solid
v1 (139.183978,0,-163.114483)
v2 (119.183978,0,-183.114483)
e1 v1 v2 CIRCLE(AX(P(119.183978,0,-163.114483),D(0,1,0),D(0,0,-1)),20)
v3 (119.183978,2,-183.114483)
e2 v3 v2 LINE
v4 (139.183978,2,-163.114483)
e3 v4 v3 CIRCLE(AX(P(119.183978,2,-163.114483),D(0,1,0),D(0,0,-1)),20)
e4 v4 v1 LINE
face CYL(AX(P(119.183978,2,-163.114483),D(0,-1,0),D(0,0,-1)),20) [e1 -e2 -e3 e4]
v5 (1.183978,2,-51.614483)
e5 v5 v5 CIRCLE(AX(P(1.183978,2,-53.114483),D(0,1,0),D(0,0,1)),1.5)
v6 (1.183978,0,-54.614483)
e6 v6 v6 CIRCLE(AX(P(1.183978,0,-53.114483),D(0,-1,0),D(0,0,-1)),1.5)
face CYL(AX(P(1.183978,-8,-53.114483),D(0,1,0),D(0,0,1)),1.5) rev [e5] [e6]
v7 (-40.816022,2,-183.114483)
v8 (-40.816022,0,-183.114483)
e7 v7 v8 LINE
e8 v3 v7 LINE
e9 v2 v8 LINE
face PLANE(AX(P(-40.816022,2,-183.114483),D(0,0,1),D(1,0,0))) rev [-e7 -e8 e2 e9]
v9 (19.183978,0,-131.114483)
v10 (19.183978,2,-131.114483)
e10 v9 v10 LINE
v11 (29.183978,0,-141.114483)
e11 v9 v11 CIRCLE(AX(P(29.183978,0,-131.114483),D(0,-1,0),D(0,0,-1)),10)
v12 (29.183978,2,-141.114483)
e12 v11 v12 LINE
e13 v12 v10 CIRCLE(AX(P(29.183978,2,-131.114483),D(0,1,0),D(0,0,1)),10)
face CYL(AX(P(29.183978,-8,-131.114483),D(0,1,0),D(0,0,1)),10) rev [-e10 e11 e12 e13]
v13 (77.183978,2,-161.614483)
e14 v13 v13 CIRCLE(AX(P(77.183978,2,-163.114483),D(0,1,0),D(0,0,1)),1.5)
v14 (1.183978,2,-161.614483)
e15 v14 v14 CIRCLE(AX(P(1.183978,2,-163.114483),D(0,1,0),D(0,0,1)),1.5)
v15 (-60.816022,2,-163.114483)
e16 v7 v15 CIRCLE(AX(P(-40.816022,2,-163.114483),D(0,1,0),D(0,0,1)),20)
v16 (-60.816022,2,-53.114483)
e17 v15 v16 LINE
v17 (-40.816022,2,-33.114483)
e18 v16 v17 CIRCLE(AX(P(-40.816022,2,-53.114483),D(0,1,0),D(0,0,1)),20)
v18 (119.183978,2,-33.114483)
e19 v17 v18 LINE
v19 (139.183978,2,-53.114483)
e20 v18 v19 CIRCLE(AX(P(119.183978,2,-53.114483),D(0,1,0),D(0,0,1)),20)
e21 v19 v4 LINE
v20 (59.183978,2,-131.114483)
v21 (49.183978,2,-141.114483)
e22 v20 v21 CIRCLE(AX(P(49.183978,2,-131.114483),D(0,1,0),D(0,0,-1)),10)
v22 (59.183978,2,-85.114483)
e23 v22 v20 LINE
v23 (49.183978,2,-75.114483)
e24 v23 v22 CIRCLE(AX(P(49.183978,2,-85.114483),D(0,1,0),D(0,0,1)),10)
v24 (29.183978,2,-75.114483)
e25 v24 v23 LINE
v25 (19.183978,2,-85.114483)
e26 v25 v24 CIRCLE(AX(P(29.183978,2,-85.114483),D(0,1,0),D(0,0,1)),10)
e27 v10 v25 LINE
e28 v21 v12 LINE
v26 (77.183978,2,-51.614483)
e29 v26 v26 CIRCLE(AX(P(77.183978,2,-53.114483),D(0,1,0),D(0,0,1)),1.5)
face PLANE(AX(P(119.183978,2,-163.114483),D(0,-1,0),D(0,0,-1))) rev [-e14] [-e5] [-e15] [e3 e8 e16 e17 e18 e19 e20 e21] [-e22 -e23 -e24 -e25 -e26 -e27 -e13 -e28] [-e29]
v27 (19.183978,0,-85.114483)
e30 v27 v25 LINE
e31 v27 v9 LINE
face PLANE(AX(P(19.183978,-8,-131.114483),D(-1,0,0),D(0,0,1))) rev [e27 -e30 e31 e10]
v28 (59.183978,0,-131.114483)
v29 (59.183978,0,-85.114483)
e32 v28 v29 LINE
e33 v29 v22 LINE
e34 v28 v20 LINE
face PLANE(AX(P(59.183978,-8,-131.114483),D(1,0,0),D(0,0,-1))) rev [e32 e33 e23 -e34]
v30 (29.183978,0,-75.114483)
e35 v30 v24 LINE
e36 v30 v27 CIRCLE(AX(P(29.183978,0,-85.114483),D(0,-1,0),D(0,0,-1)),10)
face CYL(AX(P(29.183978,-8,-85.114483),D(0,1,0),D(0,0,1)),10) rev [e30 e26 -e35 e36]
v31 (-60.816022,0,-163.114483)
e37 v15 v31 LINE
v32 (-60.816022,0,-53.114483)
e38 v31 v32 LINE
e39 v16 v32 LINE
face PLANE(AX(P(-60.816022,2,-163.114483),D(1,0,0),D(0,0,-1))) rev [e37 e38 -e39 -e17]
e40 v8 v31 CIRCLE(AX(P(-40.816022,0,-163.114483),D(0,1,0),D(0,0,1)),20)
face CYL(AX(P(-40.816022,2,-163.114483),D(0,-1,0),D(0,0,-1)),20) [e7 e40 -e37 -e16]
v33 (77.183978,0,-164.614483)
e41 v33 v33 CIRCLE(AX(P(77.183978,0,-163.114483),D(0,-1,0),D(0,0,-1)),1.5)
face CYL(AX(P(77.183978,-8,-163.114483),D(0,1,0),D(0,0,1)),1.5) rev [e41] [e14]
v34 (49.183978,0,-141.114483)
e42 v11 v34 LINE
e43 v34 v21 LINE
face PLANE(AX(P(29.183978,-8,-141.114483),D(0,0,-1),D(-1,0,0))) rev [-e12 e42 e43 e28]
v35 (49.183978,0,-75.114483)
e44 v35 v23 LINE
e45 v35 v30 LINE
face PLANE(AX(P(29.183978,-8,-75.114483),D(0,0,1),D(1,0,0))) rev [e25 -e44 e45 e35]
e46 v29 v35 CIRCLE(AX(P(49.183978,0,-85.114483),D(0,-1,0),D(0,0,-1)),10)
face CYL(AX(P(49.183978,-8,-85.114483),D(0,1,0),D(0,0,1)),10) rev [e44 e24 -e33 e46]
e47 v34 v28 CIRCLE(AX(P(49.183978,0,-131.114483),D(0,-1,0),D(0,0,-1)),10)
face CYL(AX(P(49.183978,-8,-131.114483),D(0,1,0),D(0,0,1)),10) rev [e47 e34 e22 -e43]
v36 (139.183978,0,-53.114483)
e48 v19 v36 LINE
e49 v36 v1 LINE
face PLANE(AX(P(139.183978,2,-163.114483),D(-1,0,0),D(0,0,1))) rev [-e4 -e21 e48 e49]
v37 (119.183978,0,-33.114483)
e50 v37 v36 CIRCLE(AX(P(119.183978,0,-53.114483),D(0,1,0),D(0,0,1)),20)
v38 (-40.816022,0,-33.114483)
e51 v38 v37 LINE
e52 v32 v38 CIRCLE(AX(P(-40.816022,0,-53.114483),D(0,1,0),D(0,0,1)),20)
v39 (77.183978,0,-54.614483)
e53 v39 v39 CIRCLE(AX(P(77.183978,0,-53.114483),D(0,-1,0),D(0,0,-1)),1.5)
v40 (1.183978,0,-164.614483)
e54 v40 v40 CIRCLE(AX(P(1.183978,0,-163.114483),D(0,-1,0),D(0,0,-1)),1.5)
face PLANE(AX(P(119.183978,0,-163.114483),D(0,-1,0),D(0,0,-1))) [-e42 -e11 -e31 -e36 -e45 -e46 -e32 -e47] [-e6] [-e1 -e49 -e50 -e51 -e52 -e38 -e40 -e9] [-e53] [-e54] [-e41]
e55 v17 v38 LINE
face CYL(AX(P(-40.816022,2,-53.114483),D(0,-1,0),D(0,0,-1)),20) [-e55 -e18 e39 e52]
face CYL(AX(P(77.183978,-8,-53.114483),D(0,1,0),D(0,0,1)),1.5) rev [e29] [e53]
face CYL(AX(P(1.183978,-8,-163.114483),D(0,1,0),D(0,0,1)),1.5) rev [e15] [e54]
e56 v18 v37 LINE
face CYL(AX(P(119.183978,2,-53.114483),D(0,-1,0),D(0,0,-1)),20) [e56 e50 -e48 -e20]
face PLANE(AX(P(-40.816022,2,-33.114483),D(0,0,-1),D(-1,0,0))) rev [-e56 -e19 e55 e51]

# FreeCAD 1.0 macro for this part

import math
import FreeCAD as App
import Part
import Sketcher

V = App.Vector
Q = App.Units.Quantity

doc = App.newDocument("Part")
params = doc.addObject("Spreadsheet::Sheet", "Params")
for row, (alias, value) in enumerate([
    ("sketch1_radius", "20 mm"),
    ("sketch1_width", "160 mm"),
    ("sketch1_height", "110 mm"),
    ("pad1_length", "2 mm"),
    ("sketch2_diameter", "3 mm"),
    ("pocket1_length", "10 mm"),
    ("sketch3_radius", "10 mm"),
    ("sketch3_width", "20 mm"),
    ("sketch3_height", "46 mm"),
    ("pocket2_length", "10 mm"),
], start=1):
    params.set(f"A{row}", alias)
    params.set(f"B{row}", "=" + value)
    params.setAlias(f"B{row}", alias)

body = doc.addObject("PartDesign::Body", "Body")

sketch1 = body.newObject("Sketcher::SketchObject", "Sketch")
sketch1.AttachmentSupport = (doc.getObject("XZ_Plane"), [""])
sketch1.MapMode = "FlatFace"
sketch1.addGeometry([
    Part.LineSegment(V(119, -183, 0), V(-41, -183, 0)),
    Part.ArcOfCircle(Part.Circle(V(-41, -163, 0), V(0, 0, 1), 20), math.radians(180), math.radians(270)),
    Part.LineSegment(V(-61, -163, 0), V(-61, -53, 0)),
    Part.ArcOfCircle(Part.Circle(V(-41, -53, 0), V(0, 0, 1), 20), math.radians(90), math.radians(180)),
    Part.LineSegment(V(-41, -33, 0), V(119, -33, 0)),
    Part.ArcOfCircle(Part.Circle(V(119, -53, 0), V(0, 0, 1), 20), math.radians(0), math.radians(90)),
    Part.LineSegment(V(139, -53, 0), V(139, -163, 0)),
    Part.ArcOfCircle(Part.Circle(V(119, -163, 0), V(0, 0, 1), 20), math.radians(-90), math.radians(0)),
], False)
sketch1.addConstraint([
    Sketcher.Constraint("Tangent", 0, 2, 1, 2),
    Sketcher.Constraint("Tangent", 1, 1, 2, 1),
    Sketcher.Constraint("Tangent", 2, 2, 3, 2),
    Sketcher.Constraint("Tangent", 3, 1, 4, 1),
    Sketcher.Constraint("Tangent", 4, 2, 5, 2),
    Sketcher.Constraint("Tangent", 5, 1, 6, 1),
    Sketcher.Constraint("Tangent", 6, 2, 7, 2),
    Sketcher.Constraint("Tangent", 7, 1, 0, 1),
    Sketcher.Constraint("Horizontal", 0),
    Sketcher.Constraint("Vertical", 2),
    Sketcher.Constraint("Horizontal", 4),
    Sketcher.Constraint("Vertical", 6),
    Sketcher.Constraint("Equal", 1, 3),
    Sketcher.Constraint("Equal", 3, 5),
    Sketcher.Constraint("Equal", 5, 7),
    Sketcher.Constraint("Radius", 1, Q("20 mm")),
    Sketcher.Constraint("DistanceX", 0, 2, 0, 1, Q("160 mm")),
    Sketcher.Constraint("DistanceY", 2, 1, 2, 2, Q("110 mm")),
    Sketcher.Constraint("DistanceX", 1, 3, -1, 1, Q("40.816022 mm")),
    Sketcher.Constraint("DistanceY", 1, 3, -1, 1, Q("163.114483 mm")),
])
sketch1.setExpression("Constraints[15]", "Params.sketch1_radius")
sketch1.setExpression("Constraints[16]", "Params.sketch1_width")
sketch1.setExpression("Constraints[17]", "Params.sketch1_height")
pad1 = body.newObject("PartDesign::Pad", "Pad")
pad1.Profile = sketch1
pad1.setExpression("Length", "Params.pad1_length")
pad1.Reversed = True

sketch2 = body.newObject("Sketcher::SketchObject", "Sketch001")
sketch2.AttachmentSupport = (doc.getObject("XZ_Plane"), [""])
sketch2.MapMode = "FlatFace"
sketch2.AttachmentOffset = App.Placement(V(0, 0, -2), App.Rotation())
sketch2.addGeometry([
    Part.Circle(V(1.2, -163.1, 0), V(0, 0, 1), 1.5),
    Part.Circle(V(77.2, -163.1, 0), V(0, 0, 1), 1.5),
    Part.Circle(V(77.2, -53.1, 0), V(0, 0, 1), 1.5),
    Part.Circle(V(1.2, -53.1, 0), V(0, 0, 1), 1.5),
], False)
sketch2.addConstraint([
    Sketcher.Constraint("Equal", 0, 1),
    Sketcher.Constraint("Equal", 1, 2),
    Sketcher.Constraint("Equal", 2, 3),
    Sketcher.Constraint("Horizontal", 0, 3, 1, 3),
    Sketcher.Constraint("Horizontal", 2, 3, 3, 3),
    Sketcher.Constraint("Vertical", 1, 3, 2, 3),
    Sketcher.Constraint("Vertical", 0, 3, 3, 3),
    Sketcher.Constraint("Diameter", 0, Q("3 mm")),
    Sketcher.Constraint("DistanceX", 0, 3, 1, 3, Q("76 mm")),
    Sketcher.Constraint("DistanceY", 1, 3, 2, 3, Q("110 mm")),
    Sketcher.Constraint("DistanceX", -1, 1, 0, 3, Q("1.183978 mm")),
    Sketcher.Constraint("DistanceY", 0, 3, -1, 1, Q("163.114483 mm")),
])
sketch2.setExpression("Constraints[7]", "Params.sketch2_diameter")
pocket1 = body.newObject("PartDesign::Pocket", "Pocket")
pocket1.Profile = sketch2
pocket1.setExpression("Length", "Params.pocket1_length")
pocket1.Reversed = True

sketch3 = body.newObject("Sketcher::SketchObject", "Sketch002")
sketch3.AttachmentSupport = (doc.getObject("XZ_Plane"), [""])
sketch3.MapMode = "FlatFace"
sketch3.AttachmentOffset = App.Placement(V(0, 0, -2), App.Rotation())
sketch3.addGeometry([
    Part.LineSegment(V(49, -141, 0), V(29, -141, 0)),
    Part.ArcOfCircle(Part.Circle(V(29, -131, 0), V(0, 0, 1), 10), math.radians(180), math.radians(270)),
    Part.LineSegment(V(19, -131, 0), V(19, -85, 0)),
    Part.ArcOfCircle(Part.Circle(V(29, -85, 0), V(0, 0, 1), 10), math.radians(90), math.radians(180)),
    Part.LineSegment(V(29, -75, 0), V(49, -75, 0)),
    Part.ArcOfCircle(Part.Circle(V(49, -85, 0), V(0, 0, 1), 10), math.radians(0), math.radians(90)),
    Part.LineSegment(V(59, -85, 0), V(59, -131, 0)),
    Part.ArcOfCircle(Part.Circle(V(49, -131, 0), V(0, 0, 1), 10), math.radians(-90), math.radians(0)),
], False)
sketch3.addConstraint([
    Sketcher.Constraint("Tangent", 0, 2, 1, 2),
    Sketcher.Constraint("Tangent", 1, 1, 2, 1),
    Sketcher.Constraint("Tangent", 2, 2, 3, 2),
    Sketcher.Constraint("Tangent", 3, 1, 4, 1),
    Sketcher.Constraint("Tangent", 4, 2, 5, 2),
    Sketcher.Constraint("Tangent", 5, 1, 6, 1),
    Sketcher.Constraint("Tangent", 6, 2, 7, 2),
    Sketcher.Constraint("Tangent", 7, 1, 0, 1),
    Sketcher.Constraint("Horizontal", 0),
    Sketcher.Constraint("Vertical", 2),
    Sketcher.Constraint("Horizontal", 4),
    Sketcher.Constraint("Vertical", 6),
    Sketcher.Constraint("Equal", 1, 3),
    Sketcher.Constraint("Equal", 3, 5),
    Sketcher.Constraint("Equal", 5, 7),
    Sketcher.Constraint("Radius", 1, Q("10 mm")),
    Sketcher.Constraint("DistanceX", 0, 2, 0, 1, Q("20 mm")),
    Sketcher.Constraint("DistanceY", 2, 1, 2, 2, Q("46 mm")),
    Sketcher.Constraint("DistanceX", -1, 1, 1, 3, Q("29.183978 mm")),
    Sketcher.Constraint("DistanceY", 1, 3, -1, 1, Q("131.114483 mm")),
])
sketch3.setExpression("Constraints[15]", "Params.sketch3_radius")
sketch3.setExpression("Constraints[16]", "Params.sketch3_width")
sketch3.setExpression("Constraints[17]", "Params.sketch3_height")
pocket2 = body.newObject("PartDesign::Pocket", "Pocket001")
pocket2.Profile = sketch3
pocket2.setExpression("Length", "Params.pocket2_length")
pocket2.Reversed = True

doc.recompute()
